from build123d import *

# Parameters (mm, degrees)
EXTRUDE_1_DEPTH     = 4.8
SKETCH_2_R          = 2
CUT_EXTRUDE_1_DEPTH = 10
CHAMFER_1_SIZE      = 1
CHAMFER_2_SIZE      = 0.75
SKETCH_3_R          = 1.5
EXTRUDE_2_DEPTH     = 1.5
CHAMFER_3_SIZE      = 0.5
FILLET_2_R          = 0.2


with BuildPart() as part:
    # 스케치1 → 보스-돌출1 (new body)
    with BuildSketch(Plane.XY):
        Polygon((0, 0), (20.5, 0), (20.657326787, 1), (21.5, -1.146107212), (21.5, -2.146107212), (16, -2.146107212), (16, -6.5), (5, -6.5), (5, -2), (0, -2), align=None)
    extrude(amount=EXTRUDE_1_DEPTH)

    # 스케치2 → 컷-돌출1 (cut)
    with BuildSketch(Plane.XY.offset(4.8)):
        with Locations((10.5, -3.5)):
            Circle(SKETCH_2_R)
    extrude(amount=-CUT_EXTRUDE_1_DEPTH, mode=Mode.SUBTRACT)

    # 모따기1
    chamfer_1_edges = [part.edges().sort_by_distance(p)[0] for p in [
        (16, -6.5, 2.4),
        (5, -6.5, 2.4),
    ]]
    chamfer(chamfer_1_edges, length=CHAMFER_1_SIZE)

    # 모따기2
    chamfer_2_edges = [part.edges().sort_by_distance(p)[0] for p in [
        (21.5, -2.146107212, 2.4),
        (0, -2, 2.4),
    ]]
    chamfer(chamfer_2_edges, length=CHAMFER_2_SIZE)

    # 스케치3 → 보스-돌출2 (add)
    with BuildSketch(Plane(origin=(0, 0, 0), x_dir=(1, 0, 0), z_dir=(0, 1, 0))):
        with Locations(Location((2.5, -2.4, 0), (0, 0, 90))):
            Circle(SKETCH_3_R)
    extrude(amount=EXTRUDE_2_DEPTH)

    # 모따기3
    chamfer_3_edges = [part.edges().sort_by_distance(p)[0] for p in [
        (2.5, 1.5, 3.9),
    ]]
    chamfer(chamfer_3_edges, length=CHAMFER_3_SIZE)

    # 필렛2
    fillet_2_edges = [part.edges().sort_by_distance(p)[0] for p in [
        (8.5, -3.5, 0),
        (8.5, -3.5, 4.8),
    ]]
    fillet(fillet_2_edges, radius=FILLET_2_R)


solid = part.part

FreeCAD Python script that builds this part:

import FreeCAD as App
import Part
import Sketcher
Q = App.Units.Quantity


def edges_at(feature, points):
    """Names of the edges that pass closest to the given points."""
    edges = feature.Shape.Edges
    near = lambda p: min(range(len(edges)), key=lambda i: edges[i].distToShape(Part.Vertex(*p))[0])
    return sorted({f"Edge{near(p) + 1}" for p in points})


def add_polygon(sketch, points):
    """Adds a closed chain of lines whose ends are joined by coincident constraints."""
    first, n = sketch.GeometryCount, len(points)
    for a, b in zip(points, points[1:] + points[:1]):
        sketch.addGeometry(Part.LineSegment(App.Vector(*a, 0), App.Vector(*b, 0)), False)
    for i in range(n):
        sketch.addConstraint(Sketcher.Constraint("Coincident", first + i, 2, first + (i + 1) % n, 1))

doc = App.newDocument("Part")
body = doc.addObject("PartDesign::Body", "Body")

# Sketch on XY plane
sketch1 = body.newObject("Sketcher::SketchObject", "Sketch")
sketch1.AttachmentSupport = (doc.getObject("XY_Plane"), [""])
sketch1.MapMode = "FlatFace"
add_polygon(sketch1, [(20.5, 0), (0, 0), (0, -2), (5, -2), (5, -6.5), (16, -6.5), (16, -2.146107), (21.5, -2.146107), (21.5, -1.146107), (20.657327, 1)])  # lines 0-9
sketch1.addConstraint([
    Sketcher.Constraint("Horizontal", 0),
    Sketcher.Constraint("Vertical", 1),
    Sketcher.Constraint("Horizontal", 2),
    Sketcher.Constraint("Vertical", 3),
    Sketcher.Constraint("Horizontal", 4),
    Sketcher.Constraint("Vertical", 5),
    Sketcher.Constraint("Horizontal", 6),
    Sketcher.Constraint("Vertical", 7),
    Sketcher.Constraint("Coincident", 0, 2, -1, 1),
    Sketcher.Constraint("DistanceX", 2, 1, 2, 2, Q("5 mm")),
    Sketcher.Constraint("DistanceX", 4, 1, 4, 2, Q("11 mm")),
    Sketcher.Constraint("DistanceY", 1, 2, 1, 1, Q("2 mm")),
    Sketcher.Constraint("DistanceY", 7, 1, 7, 2, Q("1 mm")),
    Sketcher.Constraint("DistanceX", 0, 2, 0, 1, Q("20.5 mm")),
    Sketcher.Constraint("DistanceX", 6, 1, 6, 2, Q("5.5 mm")),
    Sketcher.Constraint("DistanceY", 3, 2, 3, 1, Q("4.5 mm")),
    Sketcher.Constraint("DistanceY", -1, 1, 8, 2, Q("1 mm")),
    Sketcher.Constraint("Distance", 9, Q("1.0123 mm")),
    Sketcher.Constraint("DistanceY", 5, 1, 5, 2, Q("4.353893 mm")),
])
pad1 = body.newObject("PartDesign::Pad", "Pad")
pad1.Profile = sketch1
pad1.Length = 4.8

# Sketch on XY plane
sketch2 = body.newObject("Sketcher::SketchObject", "Sketch001")
sketch2.AttachmentSupport = (doc.getObject("XY_Plane"), [""])
sketch2.MapMode = "FlatFace"
sketch2.AttachmentOffset = App.Placement(App.Vector(0, 0, 4.8), App.Rotation())
sketch2.addGeometry(Part.Circle(App.Vector(10.5, -3.5, 0), App.Vector(0, 0, 1), 2), False)
sketch2.addConstraint([
    Sketcher.Constraint("Diameter", 0, Q("4 mm")),
    Sketcher.Constraint("DistanceX", -1, 1, 0, 3, Q("10.5 mm")),
    Sketcher.Constraint("DistanceY", 0, 3, -1, 1, Q("3.5 mm")),
])
pocket1 = body.newObject("PartDesign::Pocket", "Pocket")
pocket1.Profile = sketch2
pocket1.Length = 10
doc.recompute()

chamfer = body.newObject("PartDesign::Chamfer", "Chamfer")
chamfer.Base = (pocket1, edges_at(pocket1, [(16, -6.5, 2.4), (5, -6.5, 2.4)]))
chamfer.Size = 1
doc.recompute()

chamfer2 = body.newObject("PartDesign::Chamfer", "Chamfer001")
chamfer2.Base = (chamfer, edges_at(chamfer, [(21.5, -2.146, 2.4), (0, -2, 2.4)]))
chamfer2.Size = 0.75

# Sketch on XZ plane
sketch3 = body.newObject("Sketcher::SketchObject", "Sketch002")
sketch3.AttachmentSupport = (doc.getObject("XZ_Plane"), [""])
sketch3.MapMode = "FlatFace"
sketch3.addGeometry(Part.Circle(App.Vector(2.5, 2.4, 0), App.Vector(0, 0, 1), 1.5), False)
sketch3.addConstraint([
    Sketcher.Constraint("Diameter", 0, Q("3 mm")),
    Sketcher.Constraint("DistanceX", -1, 1, 0, 3, Q("2.5 mm")),
    Sketcher.Constraint("DistanceY", -1, 1, 0, 3, Q("2.4 mm")),
])
pad2 = body.newObject("PartDesign::Pad", "Pad001")
pad2.Profile = sketch3
pad2.Length = 1.5
pad2.Reversed = True
doc.recompute()

chamfer3 = body.newObject("PartDesign::Chamfer", "Chamfer002")
chamfer3.Base = (pad2, edges_at(pad2, [(2.5, 1.5, 3.9)]))
chamfer3.Size = 0.5
doc.recompute()

fillet = body.newObject("PartDesign::Fillet", "Fillet")
fillet.Base = (chamfer3, edges_at(chamfer3, [(8.5, -3.5, 0), (8.5, -3.5, 4.8)]))
fillet.Radius = 0.2

doc.recompute()
